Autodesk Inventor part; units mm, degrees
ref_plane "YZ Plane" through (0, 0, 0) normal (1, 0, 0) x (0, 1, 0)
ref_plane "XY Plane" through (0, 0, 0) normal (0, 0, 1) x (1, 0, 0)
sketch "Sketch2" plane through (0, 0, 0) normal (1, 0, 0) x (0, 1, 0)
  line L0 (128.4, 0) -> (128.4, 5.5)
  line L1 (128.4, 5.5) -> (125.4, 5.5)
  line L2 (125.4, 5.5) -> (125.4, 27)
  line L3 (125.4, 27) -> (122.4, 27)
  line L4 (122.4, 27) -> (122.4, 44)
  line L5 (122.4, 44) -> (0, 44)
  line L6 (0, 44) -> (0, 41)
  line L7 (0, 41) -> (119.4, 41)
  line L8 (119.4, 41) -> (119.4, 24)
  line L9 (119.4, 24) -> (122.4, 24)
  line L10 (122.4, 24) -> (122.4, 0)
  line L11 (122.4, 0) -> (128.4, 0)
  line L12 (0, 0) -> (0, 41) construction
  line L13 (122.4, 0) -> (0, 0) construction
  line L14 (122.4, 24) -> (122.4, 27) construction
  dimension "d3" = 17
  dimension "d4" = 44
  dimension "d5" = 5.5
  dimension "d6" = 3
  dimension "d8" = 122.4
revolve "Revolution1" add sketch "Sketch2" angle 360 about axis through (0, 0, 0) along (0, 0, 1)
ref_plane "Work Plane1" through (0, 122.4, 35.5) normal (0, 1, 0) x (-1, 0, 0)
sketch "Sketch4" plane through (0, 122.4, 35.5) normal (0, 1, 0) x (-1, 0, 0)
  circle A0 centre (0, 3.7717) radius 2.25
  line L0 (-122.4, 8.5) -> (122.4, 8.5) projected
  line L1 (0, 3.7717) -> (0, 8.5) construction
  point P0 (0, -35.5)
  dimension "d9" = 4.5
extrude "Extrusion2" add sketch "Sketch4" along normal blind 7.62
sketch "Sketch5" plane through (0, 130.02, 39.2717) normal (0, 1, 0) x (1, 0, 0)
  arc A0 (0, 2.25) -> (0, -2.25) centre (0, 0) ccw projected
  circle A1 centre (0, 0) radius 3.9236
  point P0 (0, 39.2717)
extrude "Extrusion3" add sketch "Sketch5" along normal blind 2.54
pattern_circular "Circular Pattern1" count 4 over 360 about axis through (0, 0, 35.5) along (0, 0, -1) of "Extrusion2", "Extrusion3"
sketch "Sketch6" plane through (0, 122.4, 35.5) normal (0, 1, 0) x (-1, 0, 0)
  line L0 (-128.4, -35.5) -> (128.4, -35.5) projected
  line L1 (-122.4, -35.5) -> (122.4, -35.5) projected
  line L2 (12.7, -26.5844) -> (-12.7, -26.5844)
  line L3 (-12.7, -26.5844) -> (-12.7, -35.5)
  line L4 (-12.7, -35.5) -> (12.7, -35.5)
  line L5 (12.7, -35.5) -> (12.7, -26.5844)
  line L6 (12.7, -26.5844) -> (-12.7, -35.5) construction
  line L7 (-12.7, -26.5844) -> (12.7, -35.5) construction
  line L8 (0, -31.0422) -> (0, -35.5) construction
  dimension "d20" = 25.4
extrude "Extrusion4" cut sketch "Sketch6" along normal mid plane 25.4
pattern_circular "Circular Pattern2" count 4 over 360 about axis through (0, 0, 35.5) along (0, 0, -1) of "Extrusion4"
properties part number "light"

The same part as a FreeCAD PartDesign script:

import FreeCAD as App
import Part
import Sketcher
Q = App.Units.Quantity


def add_polygon(sketch, points):
    """Adds a closed chain of lines whose ends are joined by coincident constraints."""
    first, n = sketch.GeometryCount, len(points)
    for a, b in zip(points, points[1:] + points[:1]):
        sketch.addGeometry(Part.LineSegment(App.Vector(*a, 0), App.Vector(*b, 0)), False)
    for i in range(n):
        sketch.addConstraint(Sketcher.Constraint("Coincident", first + i, 2, first + (i + 1) % n, 1))

doc = App.newDocument("Part")
params = doc.addObject("Spreadsheet::Sheet", "Params")
for row, (alias, value) in enumerate([
    ("sketch1_width", "3 mm"),
    ("sketch1_height", "17 mm"),
    ("sketch1_width2", "122.4 mm"),
    ("sketch1_height2", "5.5 mm"),
    ("revolution_angle", "360 deg"),
    ("sketch2_diameter", "4.5 mm"),
    ("pad1_length", "7.62 mm"),
    ("pad2_length", "2.54 mm"),
    ("sketch4_width", "25.4 mm"),
    ("pocket1_length", "25.4 mm"),
], start=1):
    params.set(f"A{row}", alias)
    params.set(f"B{row}", "=" + value)
    params.setAlias(f"B{row}", alias)

body = doc.addObject("PartDesign::Body", "Body")
body.AllowCompound = True

# Sketch on YZ plane
sketch1 = doc.addObject("Sketcher::SketchObject", "Sketch")
body.addObject(sketch1)
sketch1.AttachmentSupport = (doc.YZ_Plane, [""])
sketch1.MapMode = "FlatFace"
add_polygon(sketch1, [(122.4, 0), (128.4, 0), (128.4, 5.5), (125.4, 5.5), (125.4, 27), (122.4, 27), (122.4, 44), (0, 44), (0, 41), (119.4, 41), (119.4, 24), (122.4, 24)])  # lines 0-11
sketch1.addConstraint([
    Sketcher.Constraint("Horizontal", 0),
    Sketcher.Constraint("Vertical", 1),
    Sketcher.Constraint("Horizontal", 2),
    Sketcher.Constraint("Vertical", 3),
    Sketcher.Constraint("Horizontal", 4),
    Sketcher.Constraint("Vertical", 5),
    Sketcher.Constraint("Horizontal", 6),
    Sketcher.Constraint("Vertical", 7),
    Sketcher.Constraint("Horizontal", 8),
    Sketcher.Constraint("Vertical", 9),
    Sketcher.Constraint("Horizontal", 10),
    Sketcher.Constraint("Vertical", 11),
    Sketcher.Constraint("PointOnObject", 0, 2, -1),
    Sketcher.Constraint("PointOnObject", 6, 2, -2),
    Sketcher.Constraint("Vertical", 5, 2, 10, 2),
    Sketcher.Constraint("Equal", 2, 4),
    Sketcher.Constraint("Equal", 4, 10),
    Sketcher.Constraint("Equal", 10, 7),
    Sketcher.Constraint("Equal", 5, 9),
    Sketcher.Constraint("DistanceX", 2, 2, 2, 1, Q("3 mm")),
    Sketcher.Constraint("DistanceY", 5, 1, 5, 2, Q("17 mm")),
    Sketcher.Constraint("DistanceX", 6, 2, 6, 1, Q("122.4 mm")),
    Sketcher.Constraint("DistanceY", 1, 1, 1, 2, Q("5.5 mm")),
    Sketcher.Constraint("DistanceY", -1, 1, 5, 2, Q("44 mm")),
])
sketch1.setExpression("Constraints[31]", "Params.sketch1_width")
sketch1.setExpression("Constraints[32]", "Params.sketch1_height")
sketch1.setExpression("Constraints[33]", "Params.sketch1_width2")
sketch1.setExpression("Constraints[34]", "Params.sketch1_height2")
revolution = doc.addObject("PartDesign::Revolution", "Revolution")
body.addObject(revolution)
revolution.Profile = sketch1
revolution.ReferenceAxis = (sketch1, ["V_Axis"])
revolution.setExpression("Angle", "Params.revolution_angle")

# Sketch on XZ plane
sketch2 = doc.addObject("Sketcher::SketchObject", "Sketch001")
body.addObject(sketch2)
sketch2.AttachmentSupport = (doc.XZ_Plane, [""])
sketch2.MapMode = "FlatFace"
sketch2.AttachmentOffset = App.Placement(App.Vector(0, 0, -122.4), App.Rotation())
sketch2.addGeometry(Part.Circle(App.Vector(0, 39.3, 0), App.Vector(0, 0, 1), 2.2), False)
sketch2.addConstraint([
    Sketcher.Constraint("PointOnObject", 0, 3, -2),
    Sketcher.Constraint("Diameter", 0, Q("4.5 mm")),
    Sketcher.Constraint("DistanceY", -1, 1, 0, 3, Q("39.2717 mm")),
])
sketch2.setExpression("Constraints[1]", "Params.sketch2_diameter")
pad1 = doc.addObject("PartDesign::Pad", "Pad")
body.addObject(pad1)
pad1.Profile = sketch2
pad1.setExpression("Length", "Params.pad1_length")
pad1.Reversed = True

# Sketch on XZ plane
sketch3 = doc.addObject("Sketcher::SketchObject", "Sketch002")
body.addObject(sketch3)
sketch3.AttachmentSupport = (doc.XZ_Plane, [""])
sketch3.MapMode = "FlatFace"
sketch3.AttachmentOffset = App.Placement(App.Vector(0, 0, -130.02), App.Rotation())
sketch3.addGeometry(Part.Circle(App.Vector(0, 39.3, 0), App.Vector(0, 0, 1), 3.9), False)
sketch3.addConstraint([
    Sketcher.Constraint("PointOnObject", 0, 3, -2),
    Sketcher.Constraint("Diameter", 0, Q("7.8472 mm")),
    Sketcher.Constraint("DistanceY", -1, 1, 0, 3, Q("39.2717 mm")),
])
pad2 = doc.addObject("PartDesign::Pad", "Pad001")
body.addObject(pad2)
pad2.Profile = sketch3
pad2.setExpression("Length", "Params.pad2_length")
pad2.Reversed = True
doc.recompute()

polarpattern = doc.addObject("PartDesign::PolarPattern", "PolarPattern")
body.addObject(polarpattern)
polarpattern.Originals = [pad1, pad2]
polarpattern.Axis = (doc.Z_Axis, [""])
polarpattern.Angle = 360
polarpattern.Occurrences = 4
body.Tip = polarpattern

# Sketch on XZ plane
sketch4 = doc.addObject("Sketcher::SketchObject", "Sketch003")
body.addObject(sketch4)
sketch4.AttachmentSupport = (doc.XZ_Plane, [""])
sketch4.MapMode = "FlatFace"
sketch4.AttachmentOffset = App.Placement(App.Vector(0, 0, -122.4), App.Rotation())
add_polygon(sketch4, [(13, 9), (13, 0), (-13, 0), (-13, 9)])  # lines 0-3
sketch4.addConstraint([
    Sketcher.Constraint("Vertical", 0),
    Sketcher.Constraint("Horizontal", 1),
    Sketcher.Constraint("Vertical", 2),
    Sketcher.Constraint("Horizontal", 3),
    Sketcher.Constraint("Symmetric", 0, 2, 1, 2, -1, 1),
    Sketcher.Constraint("DistanceX", 1, 2, 1, 1, Q("25.4 mm")),
    Sketcher.Constraint("DistanceY", 0, 2, 0, 1, Q("8.9156 mm")),
])
sketch4.setExpression("Constraints[9]", "Params.sketch4_width")
pocket1 = doc.addObject("PartDesign::Pocket", "Pocket")
body.addObject(pocket1)
pocket1.Profile = sketch4
pocket1.setExpression("Length", "Params.pocket1_length")
pocket1.Midplane = True
doc.recompute()

polarpattern2 = doc.addObject("PartDesign::PolarPattern", "PolarPattern001")
body.addObject(polarpattern2)
polarpattern2.Originals = [pocket1]
polarpattern2.Axis = (doc.Z_Axis, [""])
polarpattern2.Angle = 360
polarpattern2.Occurrences = 4
body.Tip = polarpattern2

doc.recompute()
